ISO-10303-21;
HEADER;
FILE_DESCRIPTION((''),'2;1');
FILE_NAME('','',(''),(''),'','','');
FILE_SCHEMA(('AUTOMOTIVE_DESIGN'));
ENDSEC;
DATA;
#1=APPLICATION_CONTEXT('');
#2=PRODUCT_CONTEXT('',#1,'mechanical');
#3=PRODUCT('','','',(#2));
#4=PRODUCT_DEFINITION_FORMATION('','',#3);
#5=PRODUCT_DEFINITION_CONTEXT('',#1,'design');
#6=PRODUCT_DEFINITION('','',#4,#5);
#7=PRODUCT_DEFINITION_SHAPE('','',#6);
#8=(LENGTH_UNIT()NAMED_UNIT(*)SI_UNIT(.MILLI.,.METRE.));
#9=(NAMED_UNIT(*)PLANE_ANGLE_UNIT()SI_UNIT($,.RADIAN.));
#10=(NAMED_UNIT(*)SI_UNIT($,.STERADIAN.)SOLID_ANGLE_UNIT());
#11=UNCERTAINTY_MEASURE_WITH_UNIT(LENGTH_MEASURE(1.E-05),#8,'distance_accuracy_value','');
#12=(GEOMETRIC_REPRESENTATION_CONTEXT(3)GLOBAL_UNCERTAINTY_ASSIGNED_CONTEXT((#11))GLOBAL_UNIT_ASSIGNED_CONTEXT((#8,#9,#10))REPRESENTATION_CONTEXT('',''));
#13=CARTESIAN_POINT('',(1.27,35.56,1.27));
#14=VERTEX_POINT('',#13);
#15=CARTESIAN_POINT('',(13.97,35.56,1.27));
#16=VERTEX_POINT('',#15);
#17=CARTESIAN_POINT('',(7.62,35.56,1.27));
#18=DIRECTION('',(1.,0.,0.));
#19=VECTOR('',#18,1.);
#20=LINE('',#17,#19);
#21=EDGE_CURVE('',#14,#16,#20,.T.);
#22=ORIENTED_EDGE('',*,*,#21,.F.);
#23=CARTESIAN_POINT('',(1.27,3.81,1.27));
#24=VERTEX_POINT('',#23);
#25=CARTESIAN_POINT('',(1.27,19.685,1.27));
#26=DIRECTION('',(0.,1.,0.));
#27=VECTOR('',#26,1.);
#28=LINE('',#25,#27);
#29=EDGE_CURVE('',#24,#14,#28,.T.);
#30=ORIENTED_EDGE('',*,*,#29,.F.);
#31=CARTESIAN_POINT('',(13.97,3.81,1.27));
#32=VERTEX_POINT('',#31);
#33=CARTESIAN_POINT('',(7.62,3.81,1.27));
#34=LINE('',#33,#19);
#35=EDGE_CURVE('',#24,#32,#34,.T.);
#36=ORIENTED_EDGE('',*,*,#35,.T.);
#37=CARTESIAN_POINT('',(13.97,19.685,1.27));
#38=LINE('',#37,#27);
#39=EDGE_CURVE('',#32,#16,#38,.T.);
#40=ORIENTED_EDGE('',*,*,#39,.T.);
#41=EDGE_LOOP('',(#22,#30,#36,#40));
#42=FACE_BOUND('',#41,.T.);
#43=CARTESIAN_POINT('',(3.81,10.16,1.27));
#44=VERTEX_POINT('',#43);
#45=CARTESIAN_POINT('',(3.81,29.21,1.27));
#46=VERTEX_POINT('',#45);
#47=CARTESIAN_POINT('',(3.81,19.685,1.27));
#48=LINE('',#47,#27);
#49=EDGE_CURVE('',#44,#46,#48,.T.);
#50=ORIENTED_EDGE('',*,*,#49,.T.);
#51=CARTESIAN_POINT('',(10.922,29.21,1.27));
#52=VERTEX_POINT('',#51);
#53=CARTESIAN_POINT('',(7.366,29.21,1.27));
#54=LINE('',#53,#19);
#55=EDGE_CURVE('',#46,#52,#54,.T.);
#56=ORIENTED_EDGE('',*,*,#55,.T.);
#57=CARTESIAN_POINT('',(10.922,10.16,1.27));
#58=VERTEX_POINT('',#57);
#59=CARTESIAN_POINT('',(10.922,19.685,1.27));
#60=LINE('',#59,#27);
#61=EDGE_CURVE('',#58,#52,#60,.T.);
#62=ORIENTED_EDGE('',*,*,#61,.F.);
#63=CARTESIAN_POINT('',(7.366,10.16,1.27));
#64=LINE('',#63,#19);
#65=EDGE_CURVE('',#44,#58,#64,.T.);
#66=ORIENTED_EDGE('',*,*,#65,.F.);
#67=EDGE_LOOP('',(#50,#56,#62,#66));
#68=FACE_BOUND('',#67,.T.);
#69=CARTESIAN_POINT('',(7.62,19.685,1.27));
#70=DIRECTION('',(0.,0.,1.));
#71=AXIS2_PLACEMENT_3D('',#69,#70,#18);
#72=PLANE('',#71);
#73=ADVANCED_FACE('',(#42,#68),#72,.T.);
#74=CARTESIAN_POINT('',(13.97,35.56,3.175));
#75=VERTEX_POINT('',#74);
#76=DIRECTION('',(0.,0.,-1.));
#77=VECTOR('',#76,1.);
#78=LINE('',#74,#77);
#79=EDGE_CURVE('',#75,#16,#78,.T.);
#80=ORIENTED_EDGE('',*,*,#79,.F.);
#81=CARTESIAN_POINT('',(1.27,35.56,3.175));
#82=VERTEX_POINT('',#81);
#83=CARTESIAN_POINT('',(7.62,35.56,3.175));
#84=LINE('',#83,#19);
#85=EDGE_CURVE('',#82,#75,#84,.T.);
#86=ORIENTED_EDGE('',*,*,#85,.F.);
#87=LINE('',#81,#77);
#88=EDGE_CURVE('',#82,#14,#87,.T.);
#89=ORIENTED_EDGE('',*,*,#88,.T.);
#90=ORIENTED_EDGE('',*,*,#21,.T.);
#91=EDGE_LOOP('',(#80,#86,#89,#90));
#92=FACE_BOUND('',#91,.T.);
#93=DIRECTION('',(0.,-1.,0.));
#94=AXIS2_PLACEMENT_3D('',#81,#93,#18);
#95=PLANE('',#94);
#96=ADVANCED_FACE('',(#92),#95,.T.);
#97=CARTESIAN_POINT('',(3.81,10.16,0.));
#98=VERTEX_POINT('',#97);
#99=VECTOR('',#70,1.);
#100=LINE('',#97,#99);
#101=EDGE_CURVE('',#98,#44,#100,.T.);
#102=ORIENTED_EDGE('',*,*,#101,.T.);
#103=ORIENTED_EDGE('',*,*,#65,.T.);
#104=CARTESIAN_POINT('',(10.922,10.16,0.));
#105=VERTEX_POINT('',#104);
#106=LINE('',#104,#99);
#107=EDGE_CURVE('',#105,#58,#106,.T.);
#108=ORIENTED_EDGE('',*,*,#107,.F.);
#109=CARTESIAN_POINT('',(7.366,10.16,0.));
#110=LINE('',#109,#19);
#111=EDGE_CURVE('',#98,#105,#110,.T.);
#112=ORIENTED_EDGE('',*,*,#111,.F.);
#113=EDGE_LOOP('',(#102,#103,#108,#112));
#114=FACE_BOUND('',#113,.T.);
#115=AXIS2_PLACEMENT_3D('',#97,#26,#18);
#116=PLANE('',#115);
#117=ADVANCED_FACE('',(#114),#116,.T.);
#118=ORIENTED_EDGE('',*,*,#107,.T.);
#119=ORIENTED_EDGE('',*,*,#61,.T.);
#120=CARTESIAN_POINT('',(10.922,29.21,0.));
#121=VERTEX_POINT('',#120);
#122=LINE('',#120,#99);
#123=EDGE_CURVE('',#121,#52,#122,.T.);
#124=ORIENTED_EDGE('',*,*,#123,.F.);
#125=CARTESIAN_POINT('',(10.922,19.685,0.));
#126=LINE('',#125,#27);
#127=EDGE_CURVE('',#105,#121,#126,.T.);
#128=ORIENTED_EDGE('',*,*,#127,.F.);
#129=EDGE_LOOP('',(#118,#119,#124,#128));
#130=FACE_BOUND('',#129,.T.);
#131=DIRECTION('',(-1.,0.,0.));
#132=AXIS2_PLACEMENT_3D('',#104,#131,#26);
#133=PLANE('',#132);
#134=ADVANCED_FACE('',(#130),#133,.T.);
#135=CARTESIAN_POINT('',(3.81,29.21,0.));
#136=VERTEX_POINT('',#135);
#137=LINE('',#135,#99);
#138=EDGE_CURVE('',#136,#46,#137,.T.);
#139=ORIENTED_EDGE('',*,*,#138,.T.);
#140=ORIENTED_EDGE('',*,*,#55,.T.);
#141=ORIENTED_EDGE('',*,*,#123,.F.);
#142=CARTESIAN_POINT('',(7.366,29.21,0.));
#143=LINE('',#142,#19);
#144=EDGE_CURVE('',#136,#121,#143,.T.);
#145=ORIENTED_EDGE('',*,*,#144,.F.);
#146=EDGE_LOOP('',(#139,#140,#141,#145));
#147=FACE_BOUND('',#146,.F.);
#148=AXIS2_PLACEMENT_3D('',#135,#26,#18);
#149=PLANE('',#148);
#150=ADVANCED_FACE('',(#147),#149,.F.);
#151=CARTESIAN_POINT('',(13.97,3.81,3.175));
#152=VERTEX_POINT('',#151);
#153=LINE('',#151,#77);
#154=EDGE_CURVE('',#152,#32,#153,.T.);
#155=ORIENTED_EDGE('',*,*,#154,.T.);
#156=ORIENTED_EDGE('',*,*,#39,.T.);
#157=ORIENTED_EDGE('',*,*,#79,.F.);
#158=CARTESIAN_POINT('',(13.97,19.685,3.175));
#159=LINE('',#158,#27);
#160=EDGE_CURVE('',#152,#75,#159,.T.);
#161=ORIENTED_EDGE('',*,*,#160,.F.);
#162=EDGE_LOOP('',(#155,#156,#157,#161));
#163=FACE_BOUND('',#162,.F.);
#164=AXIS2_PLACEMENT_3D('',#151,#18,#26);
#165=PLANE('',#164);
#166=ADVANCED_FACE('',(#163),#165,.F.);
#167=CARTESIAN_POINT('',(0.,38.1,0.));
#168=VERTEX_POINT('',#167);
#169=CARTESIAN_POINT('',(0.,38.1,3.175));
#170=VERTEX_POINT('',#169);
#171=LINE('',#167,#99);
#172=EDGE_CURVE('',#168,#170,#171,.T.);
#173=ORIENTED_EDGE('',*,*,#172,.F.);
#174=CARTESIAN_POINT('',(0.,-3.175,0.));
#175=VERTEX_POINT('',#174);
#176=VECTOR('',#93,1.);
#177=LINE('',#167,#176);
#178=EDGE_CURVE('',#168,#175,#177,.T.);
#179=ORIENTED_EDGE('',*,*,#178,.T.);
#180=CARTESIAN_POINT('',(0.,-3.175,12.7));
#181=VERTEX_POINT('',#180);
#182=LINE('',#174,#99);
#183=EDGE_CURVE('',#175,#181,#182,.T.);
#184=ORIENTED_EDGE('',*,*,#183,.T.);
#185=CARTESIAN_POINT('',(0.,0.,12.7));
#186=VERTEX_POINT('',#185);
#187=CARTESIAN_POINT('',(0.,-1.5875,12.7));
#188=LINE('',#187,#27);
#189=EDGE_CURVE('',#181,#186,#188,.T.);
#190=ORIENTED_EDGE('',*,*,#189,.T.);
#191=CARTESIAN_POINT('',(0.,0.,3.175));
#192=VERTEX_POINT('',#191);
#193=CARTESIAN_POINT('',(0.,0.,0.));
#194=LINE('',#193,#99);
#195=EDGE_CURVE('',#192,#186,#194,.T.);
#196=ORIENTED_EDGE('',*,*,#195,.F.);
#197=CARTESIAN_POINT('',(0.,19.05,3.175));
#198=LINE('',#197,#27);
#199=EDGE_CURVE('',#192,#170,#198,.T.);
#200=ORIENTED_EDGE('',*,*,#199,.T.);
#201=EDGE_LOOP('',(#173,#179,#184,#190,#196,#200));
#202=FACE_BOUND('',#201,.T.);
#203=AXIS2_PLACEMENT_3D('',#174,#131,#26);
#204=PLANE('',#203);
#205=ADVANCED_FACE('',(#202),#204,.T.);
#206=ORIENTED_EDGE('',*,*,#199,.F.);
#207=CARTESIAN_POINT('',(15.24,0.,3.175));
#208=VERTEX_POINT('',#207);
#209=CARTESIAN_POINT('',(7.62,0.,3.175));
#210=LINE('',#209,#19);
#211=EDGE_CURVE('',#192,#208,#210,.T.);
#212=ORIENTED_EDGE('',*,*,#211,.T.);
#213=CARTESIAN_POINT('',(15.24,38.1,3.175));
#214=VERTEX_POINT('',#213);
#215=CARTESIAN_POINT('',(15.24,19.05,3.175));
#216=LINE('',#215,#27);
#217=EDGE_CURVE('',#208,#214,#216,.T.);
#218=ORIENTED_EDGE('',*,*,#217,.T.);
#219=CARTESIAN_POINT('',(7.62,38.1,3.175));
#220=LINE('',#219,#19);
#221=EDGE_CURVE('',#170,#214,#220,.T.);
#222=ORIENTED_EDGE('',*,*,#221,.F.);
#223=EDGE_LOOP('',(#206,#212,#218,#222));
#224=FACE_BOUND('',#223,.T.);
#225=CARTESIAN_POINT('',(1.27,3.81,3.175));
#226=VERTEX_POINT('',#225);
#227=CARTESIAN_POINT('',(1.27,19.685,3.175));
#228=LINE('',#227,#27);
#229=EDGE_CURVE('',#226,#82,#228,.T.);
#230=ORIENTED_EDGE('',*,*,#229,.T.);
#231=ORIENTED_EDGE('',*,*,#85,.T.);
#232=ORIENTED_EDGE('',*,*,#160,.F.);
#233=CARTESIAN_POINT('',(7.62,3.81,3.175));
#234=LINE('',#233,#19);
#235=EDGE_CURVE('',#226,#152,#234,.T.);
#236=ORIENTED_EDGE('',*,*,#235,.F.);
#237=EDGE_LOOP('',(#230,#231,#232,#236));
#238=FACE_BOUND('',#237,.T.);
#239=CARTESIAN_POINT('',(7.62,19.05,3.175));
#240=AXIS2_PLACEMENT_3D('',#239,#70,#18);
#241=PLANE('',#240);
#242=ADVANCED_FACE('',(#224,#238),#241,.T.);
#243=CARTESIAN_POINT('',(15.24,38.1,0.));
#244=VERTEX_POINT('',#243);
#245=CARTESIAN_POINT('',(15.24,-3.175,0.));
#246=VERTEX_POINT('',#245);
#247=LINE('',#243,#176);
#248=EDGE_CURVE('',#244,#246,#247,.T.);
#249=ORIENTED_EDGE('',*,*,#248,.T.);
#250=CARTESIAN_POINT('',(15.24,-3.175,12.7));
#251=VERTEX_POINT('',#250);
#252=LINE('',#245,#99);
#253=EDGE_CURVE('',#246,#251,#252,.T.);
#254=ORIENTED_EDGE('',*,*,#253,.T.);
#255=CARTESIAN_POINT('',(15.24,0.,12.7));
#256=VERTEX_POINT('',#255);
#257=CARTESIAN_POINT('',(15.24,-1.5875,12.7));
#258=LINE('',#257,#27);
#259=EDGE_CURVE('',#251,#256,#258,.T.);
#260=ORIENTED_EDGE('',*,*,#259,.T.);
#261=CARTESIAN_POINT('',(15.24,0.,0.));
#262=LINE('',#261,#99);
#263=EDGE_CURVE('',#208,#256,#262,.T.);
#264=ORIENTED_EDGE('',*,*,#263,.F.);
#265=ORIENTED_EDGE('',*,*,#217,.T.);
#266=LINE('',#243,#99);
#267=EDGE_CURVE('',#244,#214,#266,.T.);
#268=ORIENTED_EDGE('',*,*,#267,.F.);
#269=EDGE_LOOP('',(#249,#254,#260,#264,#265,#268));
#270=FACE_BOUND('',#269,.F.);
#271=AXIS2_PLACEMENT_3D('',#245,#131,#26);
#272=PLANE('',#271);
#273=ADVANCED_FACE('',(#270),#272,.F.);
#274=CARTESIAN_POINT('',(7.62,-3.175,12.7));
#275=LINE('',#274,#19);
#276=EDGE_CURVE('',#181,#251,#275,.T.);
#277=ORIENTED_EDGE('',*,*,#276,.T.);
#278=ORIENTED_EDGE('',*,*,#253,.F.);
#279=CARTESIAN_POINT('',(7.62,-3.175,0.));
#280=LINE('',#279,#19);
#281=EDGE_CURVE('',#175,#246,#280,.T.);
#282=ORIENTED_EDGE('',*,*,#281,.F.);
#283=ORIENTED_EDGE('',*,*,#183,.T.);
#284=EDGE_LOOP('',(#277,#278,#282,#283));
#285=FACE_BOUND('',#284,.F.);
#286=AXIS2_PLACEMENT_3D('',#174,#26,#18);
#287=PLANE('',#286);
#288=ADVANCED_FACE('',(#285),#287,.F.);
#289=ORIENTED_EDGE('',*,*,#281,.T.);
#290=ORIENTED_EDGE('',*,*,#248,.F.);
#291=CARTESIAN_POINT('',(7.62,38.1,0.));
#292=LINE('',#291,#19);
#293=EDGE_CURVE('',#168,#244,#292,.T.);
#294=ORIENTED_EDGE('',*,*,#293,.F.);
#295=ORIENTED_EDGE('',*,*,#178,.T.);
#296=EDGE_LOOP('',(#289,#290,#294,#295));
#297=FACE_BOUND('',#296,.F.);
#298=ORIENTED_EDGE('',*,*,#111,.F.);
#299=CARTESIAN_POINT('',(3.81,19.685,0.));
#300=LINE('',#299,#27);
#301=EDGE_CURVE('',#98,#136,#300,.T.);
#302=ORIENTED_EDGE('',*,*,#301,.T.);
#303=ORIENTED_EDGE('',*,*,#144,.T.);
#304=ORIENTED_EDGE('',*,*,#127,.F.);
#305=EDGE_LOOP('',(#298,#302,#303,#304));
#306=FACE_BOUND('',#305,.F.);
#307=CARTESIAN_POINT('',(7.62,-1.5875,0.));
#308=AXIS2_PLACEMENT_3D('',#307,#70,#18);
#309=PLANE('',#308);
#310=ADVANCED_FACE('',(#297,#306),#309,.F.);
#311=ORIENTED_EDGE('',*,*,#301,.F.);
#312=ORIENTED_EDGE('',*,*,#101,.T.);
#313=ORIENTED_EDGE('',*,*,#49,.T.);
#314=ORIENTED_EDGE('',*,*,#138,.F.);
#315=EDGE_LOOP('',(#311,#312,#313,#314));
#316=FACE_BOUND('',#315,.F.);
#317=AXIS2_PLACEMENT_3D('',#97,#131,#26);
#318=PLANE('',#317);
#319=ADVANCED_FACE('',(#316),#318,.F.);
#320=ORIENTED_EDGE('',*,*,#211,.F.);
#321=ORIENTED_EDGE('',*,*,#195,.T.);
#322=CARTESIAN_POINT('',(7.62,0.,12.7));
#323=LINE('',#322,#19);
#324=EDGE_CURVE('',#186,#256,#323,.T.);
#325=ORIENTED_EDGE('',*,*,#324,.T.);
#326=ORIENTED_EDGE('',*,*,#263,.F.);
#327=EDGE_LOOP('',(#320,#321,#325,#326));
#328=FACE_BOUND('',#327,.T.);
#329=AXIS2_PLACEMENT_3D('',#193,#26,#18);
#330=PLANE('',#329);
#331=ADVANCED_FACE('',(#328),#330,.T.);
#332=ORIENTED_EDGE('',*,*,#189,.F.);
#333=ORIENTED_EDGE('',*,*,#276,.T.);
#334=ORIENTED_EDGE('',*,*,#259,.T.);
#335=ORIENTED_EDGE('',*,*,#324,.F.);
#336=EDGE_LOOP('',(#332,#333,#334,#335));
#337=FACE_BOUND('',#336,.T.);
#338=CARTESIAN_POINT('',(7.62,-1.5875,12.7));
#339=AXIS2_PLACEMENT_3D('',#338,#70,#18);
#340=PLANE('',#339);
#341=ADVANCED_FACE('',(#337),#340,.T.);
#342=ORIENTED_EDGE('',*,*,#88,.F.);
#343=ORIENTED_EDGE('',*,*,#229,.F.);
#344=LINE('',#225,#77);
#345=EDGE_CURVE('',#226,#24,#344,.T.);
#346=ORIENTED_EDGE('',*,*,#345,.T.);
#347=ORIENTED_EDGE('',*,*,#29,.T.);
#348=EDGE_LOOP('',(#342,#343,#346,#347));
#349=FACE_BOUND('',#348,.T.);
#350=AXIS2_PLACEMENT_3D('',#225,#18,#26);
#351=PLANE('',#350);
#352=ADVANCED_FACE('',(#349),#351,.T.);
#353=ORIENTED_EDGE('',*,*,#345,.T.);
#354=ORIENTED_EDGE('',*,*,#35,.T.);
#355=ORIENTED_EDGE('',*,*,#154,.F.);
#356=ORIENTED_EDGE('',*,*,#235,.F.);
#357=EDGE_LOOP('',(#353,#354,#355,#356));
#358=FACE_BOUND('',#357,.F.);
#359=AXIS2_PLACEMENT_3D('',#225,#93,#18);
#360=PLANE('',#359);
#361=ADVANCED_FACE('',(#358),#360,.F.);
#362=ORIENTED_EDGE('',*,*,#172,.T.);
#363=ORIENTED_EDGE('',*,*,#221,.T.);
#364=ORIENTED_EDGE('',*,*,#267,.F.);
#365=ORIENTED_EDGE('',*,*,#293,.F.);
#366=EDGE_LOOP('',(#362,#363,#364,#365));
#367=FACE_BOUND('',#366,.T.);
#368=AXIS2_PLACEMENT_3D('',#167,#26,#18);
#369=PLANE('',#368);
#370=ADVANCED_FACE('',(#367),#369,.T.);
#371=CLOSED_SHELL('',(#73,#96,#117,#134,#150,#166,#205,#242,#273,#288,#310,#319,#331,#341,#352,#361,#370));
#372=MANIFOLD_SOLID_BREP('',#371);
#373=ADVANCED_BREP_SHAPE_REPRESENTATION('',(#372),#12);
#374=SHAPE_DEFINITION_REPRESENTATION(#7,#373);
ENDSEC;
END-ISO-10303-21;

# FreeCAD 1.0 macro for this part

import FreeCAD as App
import Part
import Sketcher
Q = App.Units.Quantity


def add_polygon(sketch, points):
    """Adds a closed chain of lines whose ends are joined by coincident constraints."""
    first, n = sketch.GeometryCount, len(points)
    for a, b in zip(points, points[1:] + points[:1]):
        sketch.addGeometry(Part.LineSegment(App.Vector(*a, 0), App.Vector(*b, 0)), False)
    for i in range(n):
        sketch.addConstraint(Sketcher.Constraint("Coincident", first + i, 2, first + (i + 1) % n, 1))

doc = App.newDocument("Part")
body = doc.addObject("PartDesign::Body", "Body")

sketch1 = body.newObject("Sketcher::SketchObject", "Sketch")
sketch1.AttachmentSupport = (doc.getObject("XY_Plane"), [""])
sketch1.MapMode = "FlatFace"
add_polygon(sketch1, [(0, 38), (0, 0), (15, 0), (15, 38)])
add_polygon(sketch1, [(11, 10), (4, 10), (4, 29), (11, 29)])
sketch1.addConstraint([
    Sketcher.Constraint("Vertical", 0),
    Sketcher.Constraint("Horizontal", 1),
    Sketcher.Constraint("Vertical", 2),
    Sketcher.Constraint("Horizontal", 3),
    Sketcher.Constraint("Horizontal", 4),
    Sketcher.Constraint("Vertical", 5),
    Sketcher.Constraint("Horizontal", 6),
    Sketcher.Constraint("Vertical", 7),
    Sketcher.Constraint("Coincident", 0, 2, -1, 1),
    Sketcher.Constraint("DistanceX", 1, 1, 1, 2, Q("0.6 in")),
    Sketcher.Constraint("DistanceY", 0, 2, 0, 1, Q("1.5 in")),
    Sketcher.Constraint("DistanceX", 4, 2, 4, 1, Q("0.28 in")),
    Sketcher.Constraint("DistanceY", 5, 1, 5, 2, Q("0.75 in")),
    Sketcher.Constraint("DistanceY", -1, 1, 4, 2, Q("0.4 in")),
    Sketcher.Constraint("DistanceX", -1, 1, 4, 2, Q("0.15 in")),
])
pad1 = body.newObject("PartDesign::Pad", "Pad")
pad1.Profile = sketch1
pad1.Length = Q("0.125 in")

sketch2 = body.newObject("Sketcher::SketchObject", "Sketch001")
sketch2.AttachmentSupport = (doc.getObject("XY_Plane"), [""])
sketch2.MapMode = "FlatFace"
sketch2.AttachmentOffset = App.Placement(App.Vector(0, 0, 0.125 * 25.4), App.Rotation())
add_polygon(sketch2, [(1, 36), (1, 4), (14, 4), (14, 36)])
add_polygon(sketch2, [(11, 10), (4, 10), (4, 29), (11, 29)])
sketch2.addConstraint([
    Sketcher.Constraint("Vertical", 0),
    Sketcher.Constraint("Horizontal", 1),
    Sketcher.Constraint("Vertical", 2),
    Sketcher.Constraint("Horizontal", 3),
    Sketcher.Constraint("Horizontal", 4),
    Sketcher.Constraint("Vertical", 5),
    Sketcher.Constraint("Horizontal", 6),
    Sketcher.Constraint("Vertical", 7),
    Sketcher.Constraint("DistanceX", 1, 1, 1, 2, Q("0.5 in")),
    Sketcher.Constraint("DistanceY", 4, 2, 3, 2, Q("1 in")),
    Sketcher.Constraint("DistanceY", 0, 2, 5, 2, Q("1 in")),
    Sketcher.Constraint("DistanceX", 4, 2, 4, 1, Q("0.28 in")),
    Sketcher.Constraint("DistanceY", 0, 2, 0, 1, Q("1.25 in")),
    Sketcher.Constraint("DistanceY", -1, 1, 2, 2, Q("1.4 in")),
    Sketcher.Constraint("DistanceX", 0, 2, 4, 2, Q("0.1 in")),
    Sketcher.Constraint("DistanceX", -1, 1, 0, 2, Q("0.05 in")),
])
pocket1 = body.newObject("PartDesign::Pocket", "Pocket")
pocket1.Profile = sketch2
pocket1.Length = Q("0.075 in")

sketch3 = body.newObject("Sketcher::SketchObject", "Sketch002")
sketch3.AttachmentSupport = (doc.getObject("XY_Plane"), [""])
sketch3.MapMode = "FlatFace"
add_polygon(sketch3, [(0, 0), (0, -3.2), (15.2, -3.2), (15.2, 0)])
sketch3.addConstraint([
    Sketcher.Constraint("Vertical", 0),
    Sketcher.Constraint("Horizontal", 1),
    Sketcher.Constraint("Vertical", 2),
    Sketcher.Constraint("Horizontal", 3),
    Sketcher.Constraint("Coincident", 3, 2, -1, 1),
    Sketcher.Constraint("DistanceX", 1, 1, 1, 2, Q("0.6 in")),
    Sketcher.Constraint("DistanceY", 0, 2, 0, 1, Q("0.125 in")),
])
pad2 = body.newObject("PartDesign::Pad", "Pad001")
pad2.Profile = sketch3
pad2.Length = Q("0.5 in")

doc.recompute()
